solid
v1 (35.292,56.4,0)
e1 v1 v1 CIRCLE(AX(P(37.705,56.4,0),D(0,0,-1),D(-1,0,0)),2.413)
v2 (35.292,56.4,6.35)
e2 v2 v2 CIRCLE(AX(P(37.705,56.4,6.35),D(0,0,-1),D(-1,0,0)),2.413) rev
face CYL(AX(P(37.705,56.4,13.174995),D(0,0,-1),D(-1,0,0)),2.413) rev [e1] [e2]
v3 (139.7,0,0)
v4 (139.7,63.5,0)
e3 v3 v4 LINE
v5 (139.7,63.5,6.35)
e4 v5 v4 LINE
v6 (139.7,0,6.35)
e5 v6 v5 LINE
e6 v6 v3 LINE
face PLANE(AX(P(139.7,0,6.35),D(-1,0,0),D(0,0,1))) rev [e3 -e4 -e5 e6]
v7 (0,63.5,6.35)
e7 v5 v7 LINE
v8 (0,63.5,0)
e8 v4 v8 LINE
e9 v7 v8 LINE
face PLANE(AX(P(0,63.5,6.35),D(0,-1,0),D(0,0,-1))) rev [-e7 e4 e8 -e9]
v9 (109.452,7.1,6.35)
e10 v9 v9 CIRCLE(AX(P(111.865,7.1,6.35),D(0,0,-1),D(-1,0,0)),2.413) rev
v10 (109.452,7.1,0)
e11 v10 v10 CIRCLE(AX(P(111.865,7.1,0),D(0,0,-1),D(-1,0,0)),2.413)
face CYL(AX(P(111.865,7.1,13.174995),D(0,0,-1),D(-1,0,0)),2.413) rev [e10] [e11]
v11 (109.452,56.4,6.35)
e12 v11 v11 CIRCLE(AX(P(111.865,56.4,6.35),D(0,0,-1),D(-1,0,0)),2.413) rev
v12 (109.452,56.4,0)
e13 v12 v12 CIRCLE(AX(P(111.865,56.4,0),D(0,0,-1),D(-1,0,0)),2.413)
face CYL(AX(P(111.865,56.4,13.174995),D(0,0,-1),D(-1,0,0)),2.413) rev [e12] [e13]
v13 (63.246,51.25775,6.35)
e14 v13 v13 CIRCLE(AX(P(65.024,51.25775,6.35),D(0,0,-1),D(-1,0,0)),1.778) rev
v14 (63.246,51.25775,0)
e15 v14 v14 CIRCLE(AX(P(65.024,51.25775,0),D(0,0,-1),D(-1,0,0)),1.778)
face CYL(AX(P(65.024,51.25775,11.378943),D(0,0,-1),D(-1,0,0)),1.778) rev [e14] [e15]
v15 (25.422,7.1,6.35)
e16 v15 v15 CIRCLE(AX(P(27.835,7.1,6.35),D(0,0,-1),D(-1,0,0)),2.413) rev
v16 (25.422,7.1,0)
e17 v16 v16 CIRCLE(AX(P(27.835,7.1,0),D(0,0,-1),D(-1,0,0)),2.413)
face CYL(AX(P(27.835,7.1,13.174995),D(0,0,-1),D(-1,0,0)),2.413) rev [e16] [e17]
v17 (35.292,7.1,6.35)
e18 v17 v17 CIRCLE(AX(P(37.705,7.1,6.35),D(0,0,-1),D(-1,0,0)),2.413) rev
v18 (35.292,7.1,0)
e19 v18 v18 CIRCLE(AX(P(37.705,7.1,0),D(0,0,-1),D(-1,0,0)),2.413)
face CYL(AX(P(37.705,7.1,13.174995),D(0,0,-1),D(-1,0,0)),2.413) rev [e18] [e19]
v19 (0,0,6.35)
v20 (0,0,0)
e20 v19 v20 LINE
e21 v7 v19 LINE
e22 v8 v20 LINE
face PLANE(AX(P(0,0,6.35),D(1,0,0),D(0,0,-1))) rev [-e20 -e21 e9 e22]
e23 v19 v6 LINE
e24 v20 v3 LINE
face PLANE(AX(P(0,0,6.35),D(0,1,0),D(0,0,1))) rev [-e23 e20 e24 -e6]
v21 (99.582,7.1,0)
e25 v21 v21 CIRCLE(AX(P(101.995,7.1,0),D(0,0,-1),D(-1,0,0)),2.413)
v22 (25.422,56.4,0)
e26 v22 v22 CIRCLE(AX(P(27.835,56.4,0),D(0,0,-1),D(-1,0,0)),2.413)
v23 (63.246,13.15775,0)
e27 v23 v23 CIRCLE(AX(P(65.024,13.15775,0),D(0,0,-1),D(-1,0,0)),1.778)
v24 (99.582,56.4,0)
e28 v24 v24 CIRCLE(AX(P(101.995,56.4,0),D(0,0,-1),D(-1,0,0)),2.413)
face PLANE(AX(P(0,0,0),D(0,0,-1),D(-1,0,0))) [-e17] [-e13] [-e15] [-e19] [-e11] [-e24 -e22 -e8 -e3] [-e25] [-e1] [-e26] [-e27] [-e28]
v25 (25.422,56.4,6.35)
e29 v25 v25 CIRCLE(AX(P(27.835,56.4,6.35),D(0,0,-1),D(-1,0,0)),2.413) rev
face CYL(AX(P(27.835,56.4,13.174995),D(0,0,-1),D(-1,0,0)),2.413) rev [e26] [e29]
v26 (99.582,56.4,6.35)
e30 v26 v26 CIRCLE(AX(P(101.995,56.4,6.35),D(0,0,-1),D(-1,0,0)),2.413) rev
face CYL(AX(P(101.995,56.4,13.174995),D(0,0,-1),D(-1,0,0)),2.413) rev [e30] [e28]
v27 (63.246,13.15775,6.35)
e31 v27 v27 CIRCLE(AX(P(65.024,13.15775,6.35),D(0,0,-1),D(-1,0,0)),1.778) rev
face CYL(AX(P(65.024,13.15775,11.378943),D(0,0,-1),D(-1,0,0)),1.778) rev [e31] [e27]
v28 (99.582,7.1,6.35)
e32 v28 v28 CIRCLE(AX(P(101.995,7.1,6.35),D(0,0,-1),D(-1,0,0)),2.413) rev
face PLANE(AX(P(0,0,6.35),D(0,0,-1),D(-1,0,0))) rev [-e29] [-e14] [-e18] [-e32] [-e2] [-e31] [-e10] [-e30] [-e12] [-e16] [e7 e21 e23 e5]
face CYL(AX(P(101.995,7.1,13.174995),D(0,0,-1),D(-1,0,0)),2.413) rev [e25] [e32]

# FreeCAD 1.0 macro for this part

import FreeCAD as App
import Part
import Sketcher
Q = App.Units.Quantity


def add_polygon(sketch, points):
    """Adds a closed chain of lines whose ends are joined by coincident constraints."""
    first, n = sketch.GeometryCount, len(points)
    for a, b in zip(points, points[1:] + points[:1]):
        sketch.addGeometry(Part.LineSegment(App.Vector(*a, 0), App.Vector(*b, 0)), False)
    for i in range(n):
        sketch.addConstraint(Sketcher.Constraint("Coincident", first + i, 2, first + (i + 1) % n, 1))

doc = App.newDocument("Part")
body = doc.addObject("PartDesign::Body", "Body")

# Sketch on XY plane
sketch1 = doc.addObject("Sketcher::SketchObject", "Sketch")
body.addObject(sketch1)
sketch1.AttachmentSupport = (doc.XY_Plane, [""])
sketch1.MapMode = "FlatFace"
add_polygon(sketch1, [(0, 64), (0, 0), (140, 0), (140, 64)])  # lines 0-3
sketch1.addConstraint([
    Sketcher.Constraint("Vertical", 0),
    Sketcher.Constraint("Horizontal", 1),
    Sketcher.Constraint("Vertical", 2),
    Sketcher.Constraint("Horizontal", 3),
    Sketcher.Constraint("Coincident", 0, 2, -1, 1),
    Sketcher.Constraint("DistanceX", 1, 1, 1, 2, Q("5.5 in")),
    Sketcher.Constraint("DistanceY", 0, 2, 0, 1, Q("2.5 in")),
])
pad1 = doc.addObject("PartDesign::Pad", "Pad")
body.addObject(pad1)
pad1.Profile = sketch1
pad1.Length = Q("0.25 in")

# Sketch on XY plane
sketch2 = doc.addObject("Sketcher::SketchObject", "Sketch001")
body.addObject(sketch2)
sketch2.AttachmentSupport = (doc.XY_Plane, [""])
sketch2.MapMode = "FlatFace"
sketch2.addGeometry([
    Part.Circle(App.Vector(65, 13.2, 0), App.Vector(0, 0, 1), 1.8),
    Part.Circle(App.Vector(65, 51.3, 0), App.Vector(0, 0, 1), 1.8),
], False)
sketch2.addConstraint([
    Sketcher.Constraint("Equal", 0, 1),
    Sketcher.Constraint("Vertical", 0, 3, 1, 3),
    Sketcher.Constraint("Diameter", 0, Q("0.14 in")),
    Sketcher.Constraint("DistanceY", 0, 3, 1, 3, Q("1.5 in")),
    Sketcher.Constraint("DistanceX", -1, 1, 0, 3, Q("2.56 in")),
    Sketcher.Constraint("DistanceY", -1, 1, 0, 3, Q("13.15775 mm")),
])
pocket1 = doc.addObject("PartDesign::Pocket", "Pocket")
body.addObject(pocket1)
pocket1.Profile = sketch2
pocket1.Length = Q("0.25 in")
pocket1.Reversed = True

# Sketch on XY plane
sketch3 = doc.addObject("Sketcher::SketchObject", "Sketch002")
body.addObject(sketch3)
sketch3.AttachmentSupport = (doc.XY_Plane, [""])
sketch3.MapMode = "FlatFace"
sketch3.addGeometry([
    Part.Circle(App.Vector(111.9, 7.1, 0), App.Vector(0, 0, 1), 2.4),  # 0
    Part.Circle(App.Vector(102, 7.1, 0), App.Vector(0, 0, 1), 2.4),  # 1
    Part.Circle(App.Vector(111.9, 56.4, 0), App.Vector(0, 0, 1), 2.4),  # 2
    Part.Circle(App.Vector(102, 56.4, 0), App.Vector(0, 0, 1), 2.4),  # 3
    Part.Circle(App.Vector(37.7, 56.4, 0), App.Vector(0, 0, 1), 2.4),  # 4
    Part.Circle(App.Vector(27.8, 56.4, 0), App.Vector(0, 0, 1), 2.4),  # 5
    Part.Circle(App.Vector(27.8, 7.1, 0), App.Vector(0, 0, 1), 2.4),  # 6
    Part.Circle(App.Vector(37.7, 7.1, 0), App.Vector(0, 0, 1), 2.4),  # 7
], False)
sketch3.addConstraint([
    Sketcher.Constraint("Equal", 0, 1),
    Sketcher.Constraint("Equal", 1, 2),
    Sketcher.Constraint("Equal", 2, 3),
    Sketcher.Constraint("Equal", 3, 4),
    Sketcher.Constraint("Equal", 4, 5),
    Sketcher.Constraint("Equal", 5, 6),
    Sketcher.Constraint("Equal", 6, 7),
    Sketcher.Constraint("Horizontal", 0, 3, 1, 3),
    Sketcher.Constraint("Horizontal", 2, 3, 3, 3),
    Sketcher.Constraint("Horizontal", 3, 3, 4, 3),
    Sketcher.Constraint("Horizontal", 4, 3, 5, 3),
    Sketcher.Constraint("Horizontal", 1, 3, 6, 3),
    Sketcher.Constraint("Horizontal", 6, 3, 7, 3),
    Sketcher.Constraint("Vertical", 0, 3, 2, 3),
    Sketcher.Constraint("Vertical", 1, 3, 3, 3),
    Sketcher.Constraint("Vertical", 5, 3, 6, 3),
    Sketcher.Constraint("Vertical", 4, 3, 7, 3),
    Sketcher.Constraint("Diameter", 0, Q("0.19 in")),
    Sketcher.Constraint("DistanceX", -1, 1, 0, 3, Q("111.865 mm")),
    Sketcher.Constraint("DistanceY", -1, 1, 0, 3, Q("7.1 mm")),
    Sketcher.Constraint("DistanceX", -1, 1, 1, 3, Q("101.995 mm")),
    Sketcher.Constraint("DistanceY", -1, 1, 2, 3, Q("56.4 mm")),
    Sketcher.Constraint("DistanceX", -1, 1, 4, 3, Q("37.705 mm")),
    Sketcher.Constraint("DistanceX", -1, 1, 5, 3, Q("27.835 mm")),
])
pocket2 = doc.addObject("PartDesign::Pocket", "Pocket001")
body.addObject(pocket2)
pocket2.Profile = sketch3
pocket2.Length = Q("0.25 in")
pocket2.Reversed = True

doc.recompute()
